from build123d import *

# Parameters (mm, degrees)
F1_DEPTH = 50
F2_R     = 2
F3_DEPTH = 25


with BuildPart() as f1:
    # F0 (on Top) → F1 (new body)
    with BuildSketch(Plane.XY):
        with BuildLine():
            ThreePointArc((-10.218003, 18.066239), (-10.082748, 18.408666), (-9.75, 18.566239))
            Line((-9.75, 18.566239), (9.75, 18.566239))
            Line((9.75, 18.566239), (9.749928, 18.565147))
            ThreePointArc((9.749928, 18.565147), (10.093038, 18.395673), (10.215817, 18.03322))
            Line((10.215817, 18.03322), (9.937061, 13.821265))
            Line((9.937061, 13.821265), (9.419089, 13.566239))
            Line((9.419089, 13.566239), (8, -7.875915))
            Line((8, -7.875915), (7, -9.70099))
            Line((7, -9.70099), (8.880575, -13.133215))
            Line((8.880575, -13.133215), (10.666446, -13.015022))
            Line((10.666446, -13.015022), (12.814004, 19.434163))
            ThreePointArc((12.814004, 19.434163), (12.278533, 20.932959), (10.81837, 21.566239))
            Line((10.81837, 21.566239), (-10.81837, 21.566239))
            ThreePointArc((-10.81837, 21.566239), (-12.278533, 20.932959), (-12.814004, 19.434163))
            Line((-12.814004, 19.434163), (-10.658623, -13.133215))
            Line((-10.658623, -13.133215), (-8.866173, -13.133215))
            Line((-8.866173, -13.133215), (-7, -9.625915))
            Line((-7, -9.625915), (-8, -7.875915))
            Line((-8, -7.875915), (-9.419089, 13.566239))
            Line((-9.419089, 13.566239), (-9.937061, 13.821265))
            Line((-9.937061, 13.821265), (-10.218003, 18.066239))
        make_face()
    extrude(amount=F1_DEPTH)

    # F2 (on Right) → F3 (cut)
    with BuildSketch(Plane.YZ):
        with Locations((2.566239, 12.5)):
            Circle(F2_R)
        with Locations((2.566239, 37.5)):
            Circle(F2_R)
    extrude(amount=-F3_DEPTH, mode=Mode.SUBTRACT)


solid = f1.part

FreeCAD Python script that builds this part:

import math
import FreeCAD as App
import Part
import Sketcher
Q = App.Units.Quantity

doc = App.newDocument("Part")
body = doc.addObject("PartDesign::Body", "Body")

# Sketch on XY plane
sketch1 = body.newObject("Sketcher::SketchObject", "Sketch")
sketch1.AttachmentSupport = (doc.getObject("XY_Plane"), [""])
sketch1.MapMode = "FlatFace"
sketch1.addGeometry(Part.ArcOfCircle(Part.Circle(App.Vector(-9.716907, 18.066237, 0), App.Vector(0, 0, 1), 0.501096), math.radians(93.786613), math.radians(179.999792)), False)
sketch1.addGeometry(Part.LineSegment(App.Vector(-9.75, 18.566239, 0), App.Vector(9.75, 18.566239, 0)), False)
sketch1.addGeometry(Part.LineSegment(App.Vector(9.75, 18.566239, 0), App.Vector(9.749928, 18.565147, 0)), False)
sketch1.addGeometry(Part.ArcOfCircle(Part.Circle(App.Vector(9.71691, 18.06624, 0), App.Vector(0, 0, 1), 0.499999), math.radians(-3.786552), math.radians(86.213635)), False)
sketch1.addGeometry(Part.LineSegment(App.Vector(10.215817, 18.03322, 0), App.Vector(9.937061, 13.821265, 0)), False)
sketch1.addGeometry(Part.LineSegment(App.Vector(9.937061, 13.821265, 0), App.Vector(9.419089, 13.566239, 0)), False)
sketch1.addGeometry(Part.LineSegment(App.Vector(9.419089, 13.566239, 0), App.Vector(8, -7.875915, 0)), False)
sketch1.addGeometry(Part.LineSegment(App.Vector(8, -7.875915, 0), App.Vector(7, -9.70099, 0)), False)
sketch1.addGeometry(Part.LineSegment(App.Vector(7, -9.70099, 0), App.Vector(8.880575, -13.133215, 0)), False)
sketch1.addGeometry(Part.LineSegment(App.Vector(8.880575, -13.133215, 0), App.Vector(10.666446, -13.015022, 0)), False)
sketch1.addGeometry(Part.LineSegment(App.Vector(10.666446, -13.015022, 0), App.Vector(12.814004, 19.434163, 0)), False)
sketch1.addGeometry(Part.ArcOfCircle(Part.Circle(App.Vector(10.81837, 19.566239, 0), App.Vector(0, 0, 1), 2), math.radians(-3.786457), math.radians(89.999997)), False)
sketch1.addGeometry(Part.LineSegment(App.Vector(10.81837, 21.566239, 0), App.Vector(-10.81837, 21.566239, 0)), False)
sketch1.addGeometry(Part.ArcOfCircle(Part.Circle(App.Vector(-10.81837, 19.566239, 0), App.Vector(0, 0, 1), 2), math.radians(90.000003), math.radians(183.786457)), False)
sketch1.addGeometry(Part.LineSegment(App.Vector(-12.814004, 19.434163, 0), App.Vector(-10.658623, -13.133215, 0)), False)
sketch1.addGeometry(Part.LineSegment(App.Vector(-10.658623, -13.133215, 0), App.Vector(-8.866173, -13.133215, 0)), False)
sketch1.addGeometry(Part.LineSegment(App.Vector(-8.866173, -13.133215, 0), App.Vector(-7, -9.625915, 0)), False)
sketch1.addGeometry(Part.LineSegment(App.Vector(-7, -9.625915, 0), App.Vector(-8, -7.875915, 0)), False)
sketch1.addGeometry(Part.LineSegment(App.Vector(-8, -7.875915, 0), App.Vector(-9.419089, 13.566239, 0)), False)
sketch1.addGeometry(Part.LineSegment(App.Vector(-9.419089, 13.566239, 0), App.Vector(-9.937061, 13.821265, 0)), False)
sketch1.addGeometry(Part.LineSegment(App.Vector(-9.937061, 13.821265, 0), App.Vector(-10.218003, 18.066239, 0)), False)
sketch1.addConstraint(Sketcher.Constraint("Coincident", 0, 1, 1, 1))
sketch1.addConstraint(Sketcher.Constraint("Coincident", 1, 2, 2, 1))
sketch1.addConstraint(Sketcher.Constraint("Coincident", 2, 2, 3, 2))
sketch1.addConstraint(Sketcher.Constraint("Coincident", 3, 1, 4, 1))
sketch1.addConstraint(Sketcher.Constraint("Coincident", 4, 2, 5, 1))
sketch1.addConstraint(Sketcher.Constraint("Coincident", 5, 2, 6, 1))
sketch1.addConstraint(Sketcher.Constraint("Coincident", 6, 2, 7, 1))
sketch1.addConstraint(Sketcher.Constraint("Coincident", 7, 2, 8, 1))
sketch1.addConstraint(Sketcher.Constraint("Coincident", 8, 2, 9, 1))
sketch1.addConstraint(Sketcher.Constraint("Coincident", 9, 2, 10, 1))
sketch1.addConstraint(Sketcher.Constraint("Coincident", 10, 2, 11, 1))
sketch1.addConstraint(Sketcher.Constraint("Coincident", 11, 2, 12, 1))
sketch1.addConstraint(Sketcher.Constraint("Coincident", 12, 2, 13, 1))
sketch1.addConstraint(Sketcher.Constraint("Coincident", 13, 2, 14, 1))
sketch1.addConstraint(Sketcher.Constraint("Coincident", 14, 2, 15, 1))
sketch1.addConstraint(Sketcher.Constraint("Coincident", 15, 2, 16, 1))
sketch1.addConstraint(Sketcher.Constraint("Coincident", 16, 2, 17, 1))
sketch1.addConstraint(Sketcher.Constraint("Coincident", 17, 2, 18, 1))
sketch1.addConstraint(Sketcher.Constraint("Coincident", 18, 2, 19, 1))
sketch1.addConstraint(Sketcher.Constraint("Coincident", 19, 2, 20, 1))
sketch1.addConstraint(Sketcher.Constraint("Coincident", 20, 2, 0, 2))
sketch1.addConstraint(Sketcher.Constraint("Horizontal", 1))
sketch1.addConstraint(Sketcher.Constraint("Horizontal", 12))
sketch1.addConstraint(Sketcher.Constraint("Horizontal", 15))
sketch1.addConstraint(Sketcher.Constraint("Radius", 11, Q("2 mm")))
sketch1.addConstraint(Sketcher.Constraint("Radius", 13, Q("2 mm")))
sketch1.addConstraint(Sketcher.Constraint("Radius", 3, Q("0.499999 mm")))
sketch1.addConstraint(Sketcher.Constraint("DistanceX", 1, 1, 1, 2, Q("19.5 mm")))
sketch1.addConstraint(Sketcher.Constraint("DistanceX", -1, 1, 6, 2, Q("8 mm")))
sketch1.addConstraint(Sketcher.Constraint("DistanceX", -1, 1, 7, 2, Q("7 mm")))
sketch1.addConstraint(Sketcher.Constraint("DistanceX", 16, 2, -1, 1, Q("7 mm")))
sketch1.addConstraint(Sketcher.Constraint("DistanceX", 17, 2, -1, 1, Q("8 mm")))
sketch1.addConstraint(Sketcher.Constraint("DistanceY", 0, 1, 13, 3, Q("1 mm")))
sketch1.addConstraint(Sketcher.Constraint("DistanceY", 5, 2, 1, 2, Q("5 mm")))
sketch1.addConstraint(Sketcher.Constraint("DistanceY", 18, 2, 0, 1, Q("5 mm")))
sketch1.addConstraint(Sketcher.Constraint("DistanceY", 3, 3, 11, 3, Q("1.499999 mm")))
sketch1.addConstraint(Sketcher.Constraint("DistanceY", 0, 3, 11, 3, Q("1.500002 mm")))
sketch1.addConstraint(Sketcher.Constraint("DistanceY", 20, 2, 0, 1, Q("0.5 mm")))
sketch1.addConstraint(Sketcher.Constraint("DistanceX", 0, 1, -1, 1, Q("9.75 mm")))
sketch1.addConstraint(Sketcher.Constraint("DistanceY", 16, 2, 6, 2, Q("1.75 mm")))
sketch1.addConstraint(Sketcher.Constraint("DistanceY", 16, 2, 17, 2, Q("1.75 mm")))
sketch1.addConstraint(Sketcher.Constraint("Radius", 0, Q("0.501096 mm")))
sketch1.addConstraint(Sketcher.Constraint("DistanceX", 13, 2, 20, 2, Q("2.596001 mm")))
sketch1.addConstraint(Sketcher.Constraint("DistanceX", 12, 2, 12, 1, Q("21.63674 mm")))
sketch1.addConstraint(Sketcher.Constraint("DistanceX", 15, 1, 15, 2, Q("1.79245 mm")))
sketch1.addConstraint(Sketcher.Constraint("DistanceY", 8, 2, 6, 2, Q("5.2573 mm")))
sketch1.addConstraint(Sketcher.Constraint("DistanceY", 14, 2, 6, 2, Q("5.2573 mm")))
sketch1.addConstraint(Sketcher.Constraint("DistanceY", 19, 2, 13, 2, Q("5.612898 mm")))
sketch1.addConstraint(Sketcher.Constraint("Distance", 4, Q("4.221169 mm")))
sketch1.addConstraint(Sketcher.Constraint("Distance", 5, Q("0.57735 mm")))
sketch1.addConstraint(Sketcher.Constraint("Distance", 6, Q("21.489062 mm")))
sketch1.addConstraint(Sketcher.Constraint("Distance", 7, Q("2.081081 mm")))
sketch1.addConstraint(Sketcher.Constraint("Distance", 8, Q("3.91366 mm")))
sketch1.addConstraint(Sketcher.Constraint("Distance", 18, Q("21.489062 mm")))
sketch1.addConstraint(Sketcher.Constraint("Distance", 19, Q("0.57735 mm")))
sketch1.addConstraint(Sketcher.Constraint("Distance", 20, Q("4.254261 mm")))
sketch1.addConstraint(Sketcher.Constraint("DistanceX", -1, 1, 3, 3, Q("9.71691 mm")))
sketch1.addConstraint(Sketcher.Constraint("DistanceY", -1, 1, 3, 3, Q("18.06624 mm")))
sketch1.addConstraint(Sketcher.Constraint("DistanceX", -1, 1, 11, 3, Q("10.81837 mm")))
sketch1.addConstraint(Sketcher.Constraint("DistanceY", -1, 1, 3, 1, Q("18.03322 mm")))
sketch1.addConstraint(Sketcher.Constraint("DistanceX", -1, 1, 4, 2, Q("9.937061 mm")))
sketch1.addConstraint(Sketcher.Constraint("DistanceX", -1, 1, 11, 2, Q("10.81837 mm")))
sketch1.addConstraint(Sketcher.Constraint("DistanceY", 2, 2, 1, 2, Q("0.001092 mm")))
sketch1.addConstraint(Sketcher.Constraint("DistanceX", 8, 2, 9, 2, Q("1.785871 mm")))
sketch1.addConstraint(Sketcher.Constraint("DistanceY", 9, 2, 5, 2, Q("26.581261 mm")))
sketch1.addConstraint(Sketcher.Constraint("DistanceX", 14, 2, 9, 2, Q("21.325069 mm")))
sketch1.addConstraint(Sketcher.Constraint("Distance", 10, Q("32.520172 mm")))
pad1 = body.newObject("PartDesign::Pad", "Pad")
pad1.Profile = sketch1
pad1.Length = 50

# Sketch on YZ plane
sketch2 = body.newObject("Sketcher::SketchObject", "Sketch001")
sketch2.AttachmentSupport = (doc.getObject("YZ_Plane"), [""])
sketch2.MapMode = "FlatFace"
sketch2.addGeometry(Part.Circle(App.Vector(2.6, 12.5, 0), App.Vector(0, 0, 1), 2), False)
sketch2.addGeometry(Part.Circle(App.Vector(2.6, 37.5, 0), App.Vector(0, 0, 1), 2), False)
sketch2.addConstraint(Sketcher.Constraint("Equal", 0, 1))
sketch2.addConstraint(Sketcher.Constraint("Vertical", 0, 3, 1, 3))
sketch2.addConstraint(Sketcher.Constraint("Diameter", 0, Q("4 mm")))
sketch2.addConstraint(Sketcher.Constraint("DistanceY", 0, 3, 1, 3, Q("25 mm")))
sketch2.addConstraint(Sketcher.Constraint("DistanceY", -1, 1, 0, 3, Q("12.5 mm")))
sketch2.addConstraint(Sketcher.Constraint("DistanceX", -1, 1, 0, 3, Q("2.566239 mm")))
pocket1 = body.newObject("PartDesign::Pocket", "Pocket")
pocket1.Profile = sketch2
pocket1.Length = 25

doc.recompute()
